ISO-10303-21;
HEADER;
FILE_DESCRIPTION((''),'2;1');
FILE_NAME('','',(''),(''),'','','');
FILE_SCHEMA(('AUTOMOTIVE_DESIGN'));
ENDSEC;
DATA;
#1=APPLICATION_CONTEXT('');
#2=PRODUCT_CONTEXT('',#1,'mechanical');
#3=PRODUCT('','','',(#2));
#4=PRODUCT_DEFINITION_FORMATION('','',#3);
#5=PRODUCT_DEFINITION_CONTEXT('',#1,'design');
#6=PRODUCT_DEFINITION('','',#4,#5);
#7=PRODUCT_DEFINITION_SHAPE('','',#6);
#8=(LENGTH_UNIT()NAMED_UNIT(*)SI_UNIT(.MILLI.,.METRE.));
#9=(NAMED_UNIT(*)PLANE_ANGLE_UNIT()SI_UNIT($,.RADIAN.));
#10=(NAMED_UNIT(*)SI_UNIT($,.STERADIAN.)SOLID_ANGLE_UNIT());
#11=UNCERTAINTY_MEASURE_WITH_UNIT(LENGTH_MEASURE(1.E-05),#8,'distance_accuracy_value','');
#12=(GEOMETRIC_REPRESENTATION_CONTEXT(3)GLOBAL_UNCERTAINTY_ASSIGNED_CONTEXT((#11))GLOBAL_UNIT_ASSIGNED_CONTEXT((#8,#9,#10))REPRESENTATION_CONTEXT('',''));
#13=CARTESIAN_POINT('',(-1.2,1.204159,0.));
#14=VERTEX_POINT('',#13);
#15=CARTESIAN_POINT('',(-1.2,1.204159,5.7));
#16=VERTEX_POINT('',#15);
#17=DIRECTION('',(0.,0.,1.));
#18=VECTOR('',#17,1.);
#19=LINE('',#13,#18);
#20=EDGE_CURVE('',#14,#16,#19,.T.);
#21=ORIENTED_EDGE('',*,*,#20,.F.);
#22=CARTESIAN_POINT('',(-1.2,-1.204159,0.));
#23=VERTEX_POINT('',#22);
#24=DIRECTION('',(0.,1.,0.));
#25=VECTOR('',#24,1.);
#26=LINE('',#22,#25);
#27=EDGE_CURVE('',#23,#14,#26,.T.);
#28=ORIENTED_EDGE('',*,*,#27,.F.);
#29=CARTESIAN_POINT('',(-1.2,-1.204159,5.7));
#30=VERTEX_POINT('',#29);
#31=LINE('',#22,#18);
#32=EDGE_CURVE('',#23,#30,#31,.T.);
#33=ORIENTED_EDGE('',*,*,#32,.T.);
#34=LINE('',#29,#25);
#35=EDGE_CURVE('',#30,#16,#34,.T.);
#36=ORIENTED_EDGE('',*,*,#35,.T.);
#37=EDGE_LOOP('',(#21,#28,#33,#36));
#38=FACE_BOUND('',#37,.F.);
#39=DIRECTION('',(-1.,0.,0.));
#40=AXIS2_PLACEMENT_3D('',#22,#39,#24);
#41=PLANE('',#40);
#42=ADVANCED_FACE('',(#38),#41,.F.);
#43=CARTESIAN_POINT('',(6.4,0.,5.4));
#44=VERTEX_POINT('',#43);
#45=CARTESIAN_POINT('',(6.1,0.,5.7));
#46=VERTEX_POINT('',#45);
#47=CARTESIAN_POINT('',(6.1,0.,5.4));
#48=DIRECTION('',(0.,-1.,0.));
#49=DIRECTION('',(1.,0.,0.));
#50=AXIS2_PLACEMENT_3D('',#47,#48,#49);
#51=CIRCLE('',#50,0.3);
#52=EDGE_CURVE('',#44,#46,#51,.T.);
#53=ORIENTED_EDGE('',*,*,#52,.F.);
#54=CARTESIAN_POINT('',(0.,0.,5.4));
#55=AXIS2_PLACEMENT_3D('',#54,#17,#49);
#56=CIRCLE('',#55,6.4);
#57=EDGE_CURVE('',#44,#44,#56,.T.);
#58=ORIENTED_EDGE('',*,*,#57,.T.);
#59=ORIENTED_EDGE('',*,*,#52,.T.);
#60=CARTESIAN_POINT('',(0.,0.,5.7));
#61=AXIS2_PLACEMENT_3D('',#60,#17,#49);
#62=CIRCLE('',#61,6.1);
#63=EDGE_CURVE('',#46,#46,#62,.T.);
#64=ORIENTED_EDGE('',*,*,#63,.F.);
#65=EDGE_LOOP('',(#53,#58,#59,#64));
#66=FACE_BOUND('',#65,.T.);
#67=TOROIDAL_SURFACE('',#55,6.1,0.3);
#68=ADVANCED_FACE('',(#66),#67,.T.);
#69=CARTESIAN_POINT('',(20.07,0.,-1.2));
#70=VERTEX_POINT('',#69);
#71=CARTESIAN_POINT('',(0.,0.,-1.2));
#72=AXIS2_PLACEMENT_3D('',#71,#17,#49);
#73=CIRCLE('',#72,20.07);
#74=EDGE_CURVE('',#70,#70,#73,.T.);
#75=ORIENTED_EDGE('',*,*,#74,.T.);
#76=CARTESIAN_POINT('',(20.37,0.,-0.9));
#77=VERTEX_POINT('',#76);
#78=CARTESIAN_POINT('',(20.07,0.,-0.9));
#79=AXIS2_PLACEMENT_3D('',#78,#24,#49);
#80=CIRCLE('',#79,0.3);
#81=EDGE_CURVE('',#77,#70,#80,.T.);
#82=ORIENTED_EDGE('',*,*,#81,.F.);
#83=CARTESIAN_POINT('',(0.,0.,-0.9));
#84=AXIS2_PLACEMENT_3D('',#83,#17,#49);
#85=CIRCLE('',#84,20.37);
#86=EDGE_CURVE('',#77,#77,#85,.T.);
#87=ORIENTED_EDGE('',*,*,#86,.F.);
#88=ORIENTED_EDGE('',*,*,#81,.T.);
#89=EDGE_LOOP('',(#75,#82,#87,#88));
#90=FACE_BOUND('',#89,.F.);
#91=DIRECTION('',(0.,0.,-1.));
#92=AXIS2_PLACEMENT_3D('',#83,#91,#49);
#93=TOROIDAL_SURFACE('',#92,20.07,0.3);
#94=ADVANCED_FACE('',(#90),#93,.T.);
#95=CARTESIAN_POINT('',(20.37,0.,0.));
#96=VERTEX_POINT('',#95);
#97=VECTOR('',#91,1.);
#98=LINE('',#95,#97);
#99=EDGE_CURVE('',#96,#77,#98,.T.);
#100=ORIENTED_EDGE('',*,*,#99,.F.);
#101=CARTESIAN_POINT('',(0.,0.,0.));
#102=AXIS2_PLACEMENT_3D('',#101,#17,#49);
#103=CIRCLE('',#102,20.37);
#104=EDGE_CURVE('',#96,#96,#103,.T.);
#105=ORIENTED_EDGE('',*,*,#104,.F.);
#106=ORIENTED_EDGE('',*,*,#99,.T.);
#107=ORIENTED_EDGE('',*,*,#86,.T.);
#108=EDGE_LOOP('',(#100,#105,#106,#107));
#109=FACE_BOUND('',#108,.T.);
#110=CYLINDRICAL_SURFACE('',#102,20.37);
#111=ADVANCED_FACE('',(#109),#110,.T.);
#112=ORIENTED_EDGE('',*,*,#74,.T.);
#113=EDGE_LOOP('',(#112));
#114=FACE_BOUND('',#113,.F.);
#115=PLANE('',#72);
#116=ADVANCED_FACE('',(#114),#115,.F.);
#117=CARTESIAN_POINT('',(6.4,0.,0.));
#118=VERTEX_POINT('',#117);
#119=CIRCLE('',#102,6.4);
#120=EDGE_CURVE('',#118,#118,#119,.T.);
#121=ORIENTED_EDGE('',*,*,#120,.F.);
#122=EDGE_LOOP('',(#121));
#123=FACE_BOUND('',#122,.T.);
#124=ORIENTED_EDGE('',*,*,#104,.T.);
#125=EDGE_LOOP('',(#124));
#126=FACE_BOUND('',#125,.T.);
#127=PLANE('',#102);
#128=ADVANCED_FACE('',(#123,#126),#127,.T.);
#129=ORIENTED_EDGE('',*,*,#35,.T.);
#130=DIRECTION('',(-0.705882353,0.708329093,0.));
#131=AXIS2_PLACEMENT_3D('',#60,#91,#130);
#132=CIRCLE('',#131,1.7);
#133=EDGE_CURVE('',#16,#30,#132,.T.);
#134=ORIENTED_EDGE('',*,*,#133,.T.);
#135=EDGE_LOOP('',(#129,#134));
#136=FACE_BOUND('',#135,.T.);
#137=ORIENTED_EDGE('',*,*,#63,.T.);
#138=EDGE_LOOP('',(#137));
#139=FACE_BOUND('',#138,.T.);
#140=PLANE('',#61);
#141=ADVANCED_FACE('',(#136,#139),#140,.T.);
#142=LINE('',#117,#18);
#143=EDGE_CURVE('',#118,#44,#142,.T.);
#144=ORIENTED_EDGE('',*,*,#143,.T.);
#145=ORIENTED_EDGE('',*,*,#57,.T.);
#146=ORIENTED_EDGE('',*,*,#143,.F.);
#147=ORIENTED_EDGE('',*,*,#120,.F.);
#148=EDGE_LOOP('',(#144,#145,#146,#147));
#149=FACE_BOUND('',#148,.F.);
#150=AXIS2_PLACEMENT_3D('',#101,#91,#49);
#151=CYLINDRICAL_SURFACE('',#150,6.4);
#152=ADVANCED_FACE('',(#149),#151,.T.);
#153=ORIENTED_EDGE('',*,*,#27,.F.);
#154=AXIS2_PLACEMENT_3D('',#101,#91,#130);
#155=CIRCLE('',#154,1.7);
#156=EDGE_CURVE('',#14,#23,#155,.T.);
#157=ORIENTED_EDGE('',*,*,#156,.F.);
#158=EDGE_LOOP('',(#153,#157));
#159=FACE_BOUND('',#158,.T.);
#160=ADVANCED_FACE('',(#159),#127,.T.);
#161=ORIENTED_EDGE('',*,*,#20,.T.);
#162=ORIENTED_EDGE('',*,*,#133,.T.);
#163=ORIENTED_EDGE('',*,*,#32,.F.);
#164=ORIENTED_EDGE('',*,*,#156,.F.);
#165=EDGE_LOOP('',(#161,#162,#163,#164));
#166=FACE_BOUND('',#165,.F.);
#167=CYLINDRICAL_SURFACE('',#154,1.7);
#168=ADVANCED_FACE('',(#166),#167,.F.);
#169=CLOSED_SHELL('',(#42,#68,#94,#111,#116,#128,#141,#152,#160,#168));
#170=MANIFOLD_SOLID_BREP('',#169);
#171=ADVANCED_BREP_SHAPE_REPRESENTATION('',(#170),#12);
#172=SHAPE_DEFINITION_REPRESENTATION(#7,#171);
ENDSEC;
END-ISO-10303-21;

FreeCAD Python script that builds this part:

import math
import FreeCAD as App
import Part
import Sketcher
from FreeCAD import Vector
Q = App.Units.Quantity


def edges_at(feature, points):
    """Names of the edges that pass closest to the given points."""
    edges = feature.Shape.Edges
    near = lambda p: min(range(len(edges)), key=lambda i: edges[i].distToShape(Part.Vertex(*p))[0])
    return sorted({f"Edge{near(p) + 1}" for p in points})

doc = App.newDocument("Part")
body = doc.addObject("PartDesign::Body", "Body")

sketch1 = body.newObject("Sketcher::SketchObject", "Sketch")
sketch1.AttachmentSupport = (doc.getObject("XY_Plane"), [""])
sketch1.MapMode = "FlatFace"
sketch1.addGeometry(Part.Circle(Vector(0, 0, 0), Vector(0, 0, 1), 20), False)
sketch1.addConstraint([
    Sketcher.Constraint("Coincident", 0, 3, -1, 1),
    Sketcher.Constraint("Diameter", 0, Q("40.74 mm")),
])
pad1 = body.newObject("PartDesign::Pad", "Pad")
pad1.Profile = sketch1
pad1.Length = 1.2
pad1.Reversed = True

sketch2 = body.newObject("Sketcher::SketchObject", "Sketch001")
sketch2.AttachmentSupport = (doc.getObject("XY_Plane"), [""])
sketch2.MapMode = "FlatFace"
sketch2.addGeometry([
    Part.Circle(Vector(0, 0, 0), Vector(0, 0, 1), 6.4),
    Part.LineSegment(Vector(-1.2, -1.2, 0), Vector(-1.2, 1.2, 0)),
    Part.ArcOfCircle(Part.Circle(Vector(0, 0, 0), Vector(0, 0, 1), 1.7), math.radians(-135), math.radians(135)),
], False)
sketch2.addConstraint([
    Sketcher.Constraint("Coincident", 1, 1, 2, 1),
    Sketcher.Constraint("Coincident", 2, 2, 1, 2),
    Sketcher.Constraint("Vertical", 1),
    Sketcher.Constraint("Coincident", 0, 3, -1, 1),
    Sketcher.Constraint("Coincident", 2, 3, -1, 1),
    Sketcher.Constraint("Diameter", 0, Q("12.8 mm")),
    Sketcher.Constraint("Radius", 2, Q("1.7 mm")),
    Sketcher.Constraint("DistanceX", 1, 1, -1, 1, Q("1.2 mm")),
])
pad2 = body.newObject("PartDesign::Pad", "Pad001")
pad2.Profile = sketch2
pad2.Length = 5.7
doc.recompute()

fillet = body.newObject("PartDesign::Fillet", "Fillet")
fillet.Base = (pad2, edges_at(pad2, [(-20.37, 0, -1.2), (-6.4, 0, 5.7)]))
fillet.Radius = 0.3

doc.recompute()
